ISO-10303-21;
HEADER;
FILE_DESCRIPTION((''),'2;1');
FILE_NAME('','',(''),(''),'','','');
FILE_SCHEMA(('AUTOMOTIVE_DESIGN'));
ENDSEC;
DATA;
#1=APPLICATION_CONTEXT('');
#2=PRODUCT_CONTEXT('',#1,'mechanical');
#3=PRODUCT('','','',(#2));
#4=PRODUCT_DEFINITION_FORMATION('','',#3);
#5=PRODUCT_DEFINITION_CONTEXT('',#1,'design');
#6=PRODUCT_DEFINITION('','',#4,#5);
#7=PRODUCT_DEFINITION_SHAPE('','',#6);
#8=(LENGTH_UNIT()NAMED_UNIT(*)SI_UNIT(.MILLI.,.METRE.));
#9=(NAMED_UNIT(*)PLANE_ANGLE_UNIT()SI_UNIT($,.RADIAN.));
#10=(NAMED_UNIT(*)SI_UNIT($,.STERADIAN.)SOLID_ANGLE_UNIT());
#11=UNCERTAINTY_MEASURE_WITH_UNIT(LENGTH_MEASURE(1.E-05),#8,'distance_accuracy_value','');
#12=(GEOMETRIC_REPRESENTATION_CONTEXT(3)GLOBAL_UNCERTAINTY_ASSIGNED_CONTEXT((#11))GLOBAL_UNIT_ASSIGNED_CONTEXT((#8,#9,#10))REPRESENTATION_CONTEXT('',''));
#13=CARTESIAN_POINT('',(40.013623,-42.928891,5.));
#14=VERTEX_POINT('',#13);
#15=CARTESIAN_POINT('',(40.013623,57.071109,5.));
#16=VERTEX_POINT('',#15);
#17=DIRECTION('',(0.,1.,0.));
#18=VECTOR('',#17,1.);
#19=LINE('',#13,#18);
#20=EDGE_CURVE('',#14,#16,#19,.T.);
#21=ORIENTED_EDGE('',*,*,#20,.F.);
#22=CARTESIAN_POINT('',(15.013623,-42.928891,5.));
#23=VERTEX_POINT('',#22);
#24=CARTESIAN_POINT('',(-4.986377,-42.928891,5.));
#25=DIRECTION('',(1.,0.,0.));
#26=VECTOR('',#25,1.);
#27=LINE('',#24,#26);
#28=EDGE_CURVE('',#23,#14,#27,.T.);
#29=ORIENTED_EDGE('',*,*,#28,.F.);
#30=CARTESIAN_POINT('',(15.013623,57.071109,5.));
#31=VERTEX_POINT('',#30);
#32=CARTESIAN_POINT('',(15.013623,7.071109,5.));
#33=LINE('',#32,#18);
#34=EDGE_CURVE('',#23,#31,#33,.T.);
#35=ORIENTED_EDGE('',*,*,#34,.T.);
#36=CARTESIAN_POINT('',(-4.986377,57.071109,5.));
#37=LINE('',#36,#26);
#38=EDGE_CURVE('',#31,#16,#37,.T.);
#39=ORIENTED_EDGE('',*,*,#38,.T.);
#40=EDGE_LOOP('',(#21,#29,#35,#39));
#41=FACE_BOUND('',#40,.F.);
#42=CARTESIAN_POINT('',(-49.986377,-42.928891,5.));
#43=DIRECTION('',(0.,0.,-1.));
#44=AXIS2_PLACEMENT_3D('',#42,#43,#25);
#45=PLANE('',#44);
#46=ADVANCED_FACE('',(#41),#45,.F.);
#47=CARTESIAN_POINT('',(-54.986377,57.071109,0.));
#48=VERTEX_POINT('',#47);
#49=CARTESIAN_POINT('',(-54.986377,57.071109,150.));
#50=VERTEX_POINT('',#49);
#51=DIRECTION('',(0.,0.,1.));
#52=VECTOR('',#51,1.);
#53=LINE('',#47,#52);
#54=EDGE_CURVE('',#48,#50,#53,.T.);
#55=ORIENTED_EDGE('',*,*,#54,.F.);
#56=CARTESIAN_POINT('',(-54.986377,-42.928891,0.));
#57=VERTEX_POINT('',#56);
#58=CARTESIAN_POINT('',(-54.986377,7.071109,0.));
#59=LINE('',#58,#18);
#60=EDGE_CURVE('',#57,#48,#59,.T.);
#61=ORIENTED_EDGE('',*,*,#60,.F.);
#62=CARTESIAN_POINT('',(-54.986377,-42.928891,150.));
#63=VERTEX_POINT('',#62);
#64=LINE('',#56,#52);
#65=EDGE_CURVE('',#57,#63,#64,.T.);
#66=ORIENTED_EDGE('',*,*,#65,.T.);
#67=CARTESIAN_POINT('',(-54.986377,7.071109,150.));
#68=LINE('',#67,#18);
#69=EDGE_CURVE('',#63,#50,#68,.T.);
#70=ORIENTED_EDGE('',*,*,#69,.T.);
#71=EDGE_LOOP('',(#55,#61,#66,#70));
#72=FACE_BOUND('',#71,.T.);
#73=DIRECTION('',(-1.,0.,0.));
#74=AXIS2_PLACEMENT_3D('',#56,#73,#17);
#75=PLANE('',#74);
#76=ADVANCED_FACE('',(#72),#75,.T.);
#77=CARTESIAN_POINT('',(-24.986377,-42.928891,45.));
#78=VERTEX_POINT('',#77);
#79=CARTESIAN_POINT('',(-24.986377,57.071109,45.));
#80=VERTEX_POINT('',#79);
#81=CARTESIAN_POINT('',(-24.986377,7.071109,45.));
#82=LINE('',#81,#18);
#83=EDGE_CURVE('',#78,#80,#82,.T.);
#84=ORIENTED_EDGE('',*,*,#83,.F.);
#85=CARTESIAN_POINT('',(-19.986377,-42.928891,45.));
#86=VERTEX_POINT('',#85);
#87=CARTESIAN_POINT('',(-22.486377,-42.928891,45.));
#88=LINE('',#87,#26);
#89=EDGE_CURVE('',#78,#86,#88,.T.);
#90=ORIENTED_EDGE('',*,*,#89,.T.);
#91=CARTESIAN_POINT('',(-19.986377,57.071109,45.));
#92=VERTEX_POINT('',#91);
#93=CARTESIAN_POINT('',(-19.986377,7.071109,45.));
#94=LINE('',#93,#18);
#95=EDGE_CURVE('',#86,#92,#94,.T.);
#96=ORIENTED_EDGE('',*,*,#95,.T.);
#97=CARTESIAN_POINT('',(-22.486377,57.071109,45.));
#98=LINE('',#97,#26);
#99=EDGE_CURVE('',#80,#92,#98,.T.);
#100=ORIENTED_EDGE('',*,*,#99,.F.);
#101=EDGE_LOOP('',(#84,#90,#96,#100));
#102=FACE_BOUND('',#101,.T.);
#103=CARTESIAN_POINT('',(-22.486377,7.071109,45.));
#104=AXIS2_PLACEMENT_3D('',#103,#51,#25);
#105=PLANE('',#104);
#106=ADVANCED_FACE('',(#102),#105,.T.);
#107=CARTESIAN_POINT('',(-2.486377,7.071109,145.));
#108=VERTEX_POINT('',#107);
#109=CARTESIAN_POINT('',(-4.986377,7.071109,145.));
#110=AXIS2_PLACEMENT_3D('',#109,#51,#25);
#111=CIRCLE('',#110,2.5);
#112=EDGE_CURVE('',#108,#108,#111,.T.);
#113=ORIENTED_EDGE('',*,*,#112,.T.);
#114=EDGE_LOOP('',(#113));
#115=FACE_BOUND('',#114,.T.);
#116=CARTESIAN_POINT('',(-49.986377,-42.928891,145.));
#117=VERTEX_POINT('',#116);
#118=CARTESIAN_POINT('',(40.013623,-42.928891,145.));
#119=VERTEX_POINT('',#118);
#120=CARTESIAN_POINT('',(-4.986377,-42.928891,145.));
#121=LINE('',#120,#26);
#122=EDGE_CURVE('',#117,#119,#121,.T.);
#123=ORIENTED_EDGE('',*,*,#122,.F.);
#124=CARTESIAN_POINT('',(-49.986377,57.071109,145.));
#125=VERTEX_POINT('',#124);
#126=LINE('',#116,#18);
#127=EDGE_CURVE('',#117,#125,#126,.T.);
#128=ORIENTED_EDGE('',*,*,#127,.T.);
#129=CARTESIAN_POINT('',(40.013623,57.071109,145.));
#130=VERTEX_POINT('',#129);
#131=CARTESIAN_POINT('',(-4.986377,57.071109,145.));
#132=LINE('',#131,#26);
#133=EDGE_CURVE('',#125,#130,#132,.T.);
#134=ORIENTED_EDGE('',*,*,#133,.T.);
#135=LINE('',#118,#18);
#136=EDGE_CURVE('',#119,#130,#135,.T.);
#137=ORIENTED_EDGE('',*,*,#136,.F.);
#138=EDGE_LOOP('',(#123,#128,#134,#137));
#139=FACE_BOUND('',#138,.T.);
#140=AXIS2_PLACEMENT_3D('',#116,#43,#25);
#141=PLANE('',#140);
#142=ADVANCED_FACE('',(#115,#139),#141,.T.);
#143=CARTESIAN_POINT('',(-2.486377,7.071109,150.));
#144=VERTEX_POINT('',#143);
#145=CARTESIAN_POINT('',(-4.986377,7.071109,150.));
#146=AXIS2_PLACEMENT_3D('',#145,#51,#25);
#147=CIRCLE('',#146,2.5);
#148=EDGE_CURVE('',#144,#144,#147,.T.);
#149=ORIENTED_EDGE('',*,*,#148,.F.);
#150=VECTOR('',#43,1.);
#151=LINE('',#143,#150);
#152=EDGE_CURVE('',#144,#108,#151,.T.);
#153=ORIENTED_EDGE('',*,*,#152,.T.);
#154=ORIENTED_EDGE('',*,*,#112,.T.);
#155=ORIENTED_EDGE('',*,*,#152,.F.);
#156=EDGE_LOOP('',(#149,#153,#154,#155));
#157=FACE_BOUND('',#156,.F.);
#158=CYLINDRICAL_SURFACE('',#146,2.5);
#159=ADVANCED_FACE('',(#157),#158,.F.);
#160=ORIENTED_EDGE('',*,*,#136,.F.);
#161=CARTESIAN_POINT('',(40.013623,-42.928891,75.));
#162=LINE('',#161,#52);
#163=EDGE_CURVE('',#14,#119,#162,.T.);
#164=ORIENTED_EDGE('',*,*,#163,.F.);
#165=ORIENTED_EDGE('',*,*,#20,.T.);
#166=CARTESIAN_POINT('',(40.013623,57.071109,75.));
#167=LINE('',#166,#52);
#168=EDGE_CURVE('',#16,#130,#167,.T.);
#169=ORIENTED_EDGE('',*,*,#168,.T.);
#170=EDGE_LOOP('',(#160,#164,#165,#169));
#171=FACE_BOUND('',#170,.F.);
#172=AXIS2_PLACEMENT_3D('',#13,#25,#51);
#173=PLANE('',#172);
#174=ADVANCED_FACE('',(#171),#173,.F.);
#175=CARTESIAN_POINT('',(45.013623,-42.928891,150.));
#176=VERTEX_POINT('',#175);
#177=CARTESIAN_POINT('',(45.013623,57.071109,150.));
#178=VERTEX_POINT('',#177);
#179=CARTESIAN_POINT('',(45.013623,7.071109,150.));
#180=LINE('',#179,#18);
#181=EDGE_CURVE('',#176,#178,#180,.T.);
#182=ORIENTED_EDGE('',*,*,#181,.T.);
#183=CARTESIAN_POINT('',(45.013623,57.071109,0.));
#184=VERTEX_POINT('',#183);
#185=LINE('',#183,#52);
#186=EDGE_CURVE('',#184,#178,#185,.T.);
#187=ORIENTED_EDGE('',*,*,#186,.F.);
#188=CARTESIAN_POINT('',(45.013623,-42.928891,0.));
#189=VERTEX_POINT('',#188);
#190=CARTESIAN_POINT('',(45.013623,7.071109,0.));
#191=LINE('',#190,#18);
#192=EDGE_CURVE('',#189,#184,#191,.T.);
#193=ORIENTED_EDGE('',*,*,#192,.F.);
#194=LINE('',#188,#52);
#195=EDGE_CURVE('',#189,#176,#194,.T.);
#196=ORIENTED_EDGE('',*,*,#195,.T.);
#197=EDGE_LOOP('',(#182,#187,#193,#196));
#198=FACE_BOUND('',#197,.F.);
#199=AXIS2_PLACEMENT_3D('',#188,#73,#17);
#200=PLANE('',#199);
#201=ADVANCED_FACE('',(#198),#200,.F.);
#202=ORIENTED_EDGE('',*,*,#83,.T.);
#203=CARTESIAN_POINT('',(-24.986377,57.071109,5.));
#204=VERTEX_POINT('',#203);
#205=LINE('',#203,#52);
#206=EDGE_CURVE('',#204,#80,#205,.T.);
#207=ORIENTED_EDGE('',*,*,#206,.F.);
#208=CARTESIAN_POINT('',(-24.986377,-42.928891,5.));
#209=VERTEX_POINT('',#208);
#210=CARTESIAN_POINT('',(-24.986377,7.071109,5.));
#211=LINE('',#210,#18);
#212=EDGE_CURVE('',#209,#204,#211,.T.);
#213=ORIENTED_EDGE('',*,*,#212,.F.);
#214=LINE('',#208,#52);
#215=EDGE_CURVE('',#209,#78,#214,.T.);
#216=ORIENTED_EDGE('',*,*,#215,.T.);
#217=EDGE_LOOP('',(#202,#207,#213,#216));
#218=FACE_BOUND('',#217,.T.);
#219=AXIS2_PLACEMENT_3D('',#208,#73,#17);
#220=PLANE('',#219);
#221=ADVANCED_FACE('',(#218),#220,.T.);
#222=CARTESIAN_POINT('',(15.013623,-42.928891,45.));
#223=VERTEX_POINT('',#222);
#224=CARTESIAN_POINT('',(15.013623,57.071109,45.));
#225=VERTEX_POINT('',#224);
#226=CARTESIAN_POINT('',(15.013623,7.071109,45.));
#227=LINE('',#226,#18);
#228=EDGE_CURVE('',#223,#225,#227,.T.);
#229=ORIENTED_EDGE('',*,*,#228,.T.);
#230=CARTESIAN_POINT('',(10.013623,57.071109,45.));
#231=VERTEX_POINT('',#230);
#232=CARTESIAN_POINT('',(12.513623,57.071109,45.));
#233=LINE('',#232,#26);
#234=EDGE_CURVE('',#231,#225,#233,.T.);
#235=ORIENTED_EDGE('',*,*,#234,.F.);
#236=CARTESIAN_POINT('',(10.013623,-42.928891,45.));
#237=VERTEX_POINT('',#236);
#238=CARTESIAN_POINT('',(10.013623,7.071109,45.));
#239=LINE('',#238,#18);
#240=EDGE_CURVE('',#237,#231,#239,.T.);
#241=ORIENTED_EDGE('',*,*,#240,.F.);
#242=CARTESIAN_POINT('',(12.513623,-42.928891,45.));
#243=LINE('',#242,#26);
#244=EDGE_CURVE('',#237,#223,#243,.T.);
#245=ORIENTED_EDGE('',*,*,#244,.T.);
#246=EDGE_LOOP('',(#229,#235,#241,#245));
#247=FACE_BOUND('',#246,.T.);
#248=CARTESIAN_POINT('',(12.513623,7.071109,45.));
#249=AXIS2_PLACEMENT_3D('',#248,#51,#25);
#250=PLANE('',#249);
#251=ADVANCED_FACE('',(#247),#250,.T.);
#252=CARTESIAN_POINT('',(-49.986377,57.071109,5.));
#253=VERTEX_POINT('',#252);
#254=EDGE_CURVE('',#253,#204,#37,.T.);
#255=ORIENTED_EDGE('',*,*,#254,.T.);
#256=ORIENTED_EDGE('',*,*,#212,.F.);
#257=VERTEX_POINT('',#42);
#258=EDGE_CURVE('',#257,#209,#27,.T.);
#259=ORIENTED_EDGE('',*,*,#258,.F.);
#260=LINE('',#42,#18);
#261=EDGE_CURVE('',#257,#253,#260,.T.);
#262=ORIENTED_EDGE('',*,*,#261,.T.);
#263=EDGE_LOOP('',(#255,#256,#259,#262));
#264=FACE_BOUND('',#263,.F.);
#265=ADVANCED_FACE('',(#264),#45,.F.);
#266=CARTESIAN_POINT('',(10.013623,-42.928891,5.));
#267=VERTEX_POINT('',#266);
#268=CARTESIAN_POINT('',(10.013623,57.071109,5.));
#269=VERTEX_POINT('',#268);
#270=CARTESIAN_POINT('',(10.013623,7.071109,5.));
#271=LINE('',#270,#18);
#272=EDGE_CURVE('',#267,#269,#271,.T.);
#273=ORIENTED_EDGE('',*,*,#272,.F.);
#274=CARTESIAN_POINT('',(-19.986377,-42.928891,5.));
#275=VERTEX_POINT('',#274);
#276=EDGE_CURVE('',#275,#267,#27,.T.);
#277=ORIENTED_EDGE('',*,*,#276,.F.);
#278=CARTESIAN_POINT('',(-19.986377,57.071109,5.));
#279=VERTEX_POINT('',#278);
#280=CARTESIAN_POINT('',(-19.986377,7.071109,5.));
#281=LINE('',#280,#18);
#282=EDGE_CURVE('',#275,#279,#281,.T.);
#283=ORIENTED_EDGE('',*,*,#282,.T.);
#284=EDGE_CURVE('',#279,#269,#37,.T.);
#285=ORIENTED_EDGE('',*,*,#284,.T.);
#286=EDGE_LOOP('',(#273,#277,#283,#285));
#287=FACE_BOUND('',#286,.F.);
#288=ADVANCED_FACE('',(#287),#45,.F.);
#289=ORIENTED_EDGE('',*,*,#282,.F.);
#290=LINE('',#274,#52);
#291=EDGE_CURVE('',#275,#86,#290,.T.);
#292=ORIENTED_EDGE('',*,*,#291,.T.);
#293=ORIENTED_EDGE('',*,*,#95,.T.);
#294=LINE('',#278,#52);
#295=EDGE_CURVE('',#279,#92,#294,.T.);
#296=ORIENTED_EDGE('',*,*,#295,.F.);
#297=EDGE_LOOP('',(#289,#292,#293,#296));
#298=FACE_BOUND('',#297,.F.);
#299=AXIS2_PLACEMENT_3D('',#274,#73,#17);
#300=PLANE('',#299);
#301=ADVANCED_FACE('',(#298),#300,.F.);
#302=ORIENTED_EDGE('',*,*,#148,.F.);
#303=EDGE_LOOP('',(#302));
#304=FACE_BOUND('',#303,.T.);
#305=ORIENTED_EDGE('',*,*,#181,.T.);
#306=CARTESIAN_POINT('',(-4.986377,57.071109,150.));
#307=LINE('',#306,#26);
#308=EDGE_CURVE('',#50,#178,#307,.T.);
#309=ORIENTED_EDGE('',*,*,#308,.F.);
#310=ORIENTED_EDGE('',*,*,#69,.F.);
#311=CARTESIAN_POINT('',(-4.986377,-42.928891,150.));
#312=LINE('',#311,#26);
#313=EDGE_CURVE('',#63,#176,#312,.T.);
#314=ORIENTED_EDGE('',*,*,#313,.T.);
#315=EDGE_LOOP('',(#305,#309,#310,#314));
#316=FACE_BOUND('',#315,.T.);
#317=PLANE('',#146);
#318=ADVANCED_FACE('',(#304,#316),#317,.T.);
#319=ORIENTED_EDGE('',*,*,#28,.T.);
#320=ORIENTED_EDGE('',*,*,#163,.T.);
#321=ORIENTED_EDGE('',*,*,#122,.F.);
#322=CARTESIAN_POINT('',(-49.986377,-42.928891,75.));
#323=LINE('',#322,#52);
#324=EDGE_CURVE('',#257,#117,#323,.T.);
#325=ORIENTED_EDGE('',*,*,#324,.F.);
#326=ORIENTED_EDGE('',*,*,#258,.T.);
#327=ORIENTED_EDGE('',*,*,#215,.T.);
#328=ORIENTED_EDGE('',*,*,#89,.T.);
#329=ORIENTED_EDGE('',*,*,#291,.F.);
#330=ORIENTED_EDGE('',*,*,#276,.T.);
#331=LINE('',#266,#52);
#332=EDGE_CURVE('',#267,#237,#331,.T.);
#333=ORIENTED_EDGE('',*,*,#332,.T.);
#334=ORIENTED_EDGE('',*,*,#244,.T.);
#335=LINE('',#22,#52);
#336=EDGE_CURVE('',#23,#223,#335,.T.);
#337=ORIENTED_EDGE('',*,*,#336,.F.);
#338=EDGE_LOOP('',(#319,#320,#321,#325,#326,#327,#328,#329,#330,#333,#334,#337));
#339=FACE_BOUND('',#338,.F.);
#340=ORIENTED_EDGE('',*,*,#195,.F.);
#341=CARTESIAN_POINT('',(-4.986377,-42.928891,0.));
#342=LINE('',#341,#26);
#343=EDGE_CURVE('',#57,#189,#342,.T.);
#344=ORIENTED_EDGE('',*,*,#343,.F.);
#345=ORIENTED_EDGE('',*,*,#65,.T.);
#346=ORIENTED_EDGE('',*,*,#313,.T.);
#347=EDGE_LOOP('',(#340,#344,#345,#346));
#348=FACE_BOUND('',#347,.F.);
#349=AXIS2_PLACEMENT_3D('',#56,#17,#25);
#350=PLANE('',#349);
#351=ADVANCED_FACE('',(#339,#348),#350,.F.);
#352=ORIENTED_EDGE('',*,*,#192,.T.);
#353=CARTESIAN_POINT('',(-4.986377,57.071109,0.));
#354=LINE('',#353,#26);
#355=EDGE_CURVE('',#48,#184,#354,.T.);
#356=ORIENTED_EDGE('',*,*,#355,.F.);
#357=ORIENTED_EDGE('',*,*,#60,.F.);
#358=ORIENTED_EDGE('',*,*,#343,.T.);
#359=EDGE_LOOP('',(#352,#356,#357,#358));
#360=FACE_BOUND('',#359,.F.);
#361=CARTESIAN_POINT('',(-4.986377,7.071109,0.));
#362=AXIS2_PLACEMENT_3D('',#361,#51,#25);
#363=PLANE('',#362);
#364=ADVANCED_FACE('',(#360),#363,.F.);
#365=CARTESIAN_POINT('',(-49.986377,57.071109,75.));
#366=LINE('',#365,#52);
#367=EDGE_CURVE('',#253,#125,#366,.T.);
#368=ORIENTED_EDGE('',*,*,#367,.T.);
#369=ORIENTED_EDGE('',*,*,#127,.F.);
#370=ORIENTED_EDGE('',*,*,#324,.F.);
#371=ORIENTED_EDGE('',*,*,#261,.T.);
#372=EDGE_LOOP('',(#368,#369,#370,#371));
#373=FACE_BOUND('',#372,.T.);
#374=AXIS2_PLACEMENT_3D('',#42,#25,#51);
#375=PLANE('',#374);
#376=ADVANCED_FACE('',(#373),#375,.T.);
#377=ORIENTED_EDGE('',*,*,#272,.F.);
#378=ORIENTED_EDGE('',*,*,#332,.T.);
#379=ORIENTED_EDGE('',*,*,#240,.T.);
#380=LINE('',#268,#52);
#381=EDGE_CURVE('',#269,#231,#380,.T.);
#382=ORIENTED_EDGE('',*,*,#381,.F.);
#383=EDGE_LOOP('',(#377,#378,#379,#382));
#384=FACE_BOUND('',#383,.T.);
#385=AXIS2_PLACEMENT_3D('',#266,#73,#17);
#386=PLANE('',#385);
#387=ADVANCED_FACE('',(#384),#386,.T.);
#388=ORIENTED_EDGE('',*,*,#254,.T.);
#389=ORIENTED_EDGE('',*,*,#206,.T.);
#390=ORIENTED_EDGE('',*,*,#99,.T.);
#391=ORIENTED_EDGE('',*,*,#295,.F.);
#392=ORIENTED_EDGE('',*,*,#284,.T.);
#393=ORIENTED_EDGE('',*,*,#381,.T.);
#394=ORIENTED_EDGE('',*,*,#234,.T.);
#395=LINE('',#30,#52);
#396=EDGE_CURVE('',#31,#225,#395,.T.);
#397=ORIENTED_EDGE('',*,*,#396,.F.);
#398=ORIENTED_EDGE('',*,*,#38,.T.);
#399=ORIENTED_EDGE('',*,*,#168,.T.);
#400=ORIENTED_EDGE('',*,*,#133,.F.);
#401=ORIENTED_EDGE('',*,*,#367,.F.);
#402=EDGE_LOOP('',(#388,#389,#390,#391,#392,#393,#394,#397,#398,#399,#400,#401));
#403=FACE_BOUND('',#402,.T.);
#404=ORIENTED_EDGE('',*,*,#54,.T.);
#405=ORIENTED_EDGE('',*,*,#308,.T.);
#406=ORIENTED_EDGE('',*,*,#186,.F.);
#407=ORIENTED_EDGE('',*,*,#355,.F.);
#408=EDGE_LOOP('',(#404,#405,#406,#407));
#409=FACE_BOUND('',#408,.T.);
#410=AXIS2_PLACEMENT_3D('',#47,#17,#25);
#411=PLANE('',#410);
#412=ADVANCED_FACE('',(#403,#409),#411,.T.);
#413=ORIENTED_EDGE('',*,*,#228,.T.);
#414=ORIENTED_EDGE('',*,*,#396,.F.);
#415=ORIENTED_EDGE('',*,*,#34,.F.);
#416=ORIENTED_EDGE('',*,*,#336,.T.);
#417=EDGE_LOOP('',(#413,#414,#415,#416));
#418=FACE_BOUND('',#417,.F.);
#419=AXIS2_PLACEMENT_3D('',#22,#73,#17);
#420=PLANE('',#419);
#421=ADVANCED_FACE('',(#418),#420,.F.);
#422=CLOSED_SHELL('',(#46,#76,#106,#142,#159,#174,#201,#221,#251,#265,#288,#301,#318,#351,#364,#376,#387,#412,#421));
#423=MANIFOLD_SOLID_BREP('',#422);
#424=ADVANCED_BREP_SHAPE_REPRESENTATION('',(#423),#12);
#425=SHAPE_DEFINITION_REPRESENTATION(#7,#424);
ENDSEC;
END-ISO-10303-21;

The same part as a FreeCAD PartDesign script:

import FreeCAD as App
import Part
import Sketcher

V = App.Vector
Q = App.Units.Quantity


def add_polygon(sketch, points):
    """Adds a closed chain of lines whose ends are joined by coincident constraints."""
    first, n = sketch.GeometryCount, len(points)
    for a, b in zip(points, points[1:] + points[:1]):
        sketch.addGeometry(Part.LineSegment(App.Vector(*a, 0), App.Vector(*b, 0)), False)
    for i in range(n):
        sketch.addConstraint(Sketcher.Constraint("Coincident", first + i, 2, first + (i + 1) % n, 1))

doc = App.newDocument("Part")
body = doc.addObject("PartDesign::Body", "Body")

sketch1 = body.newObject("Sketcher::SketchObject", "Sketch")
sketch1.AttachmentSupport = (doc.getObject("XY_Plane"), [""])
sketch1.MapMode = "FlatFace"
add_polygon(sketch1, [(-55, 57), (-55, -43), (45, -43), (45, 57)])
sketch1.addConstraint(Sketcher.Constraint("Vertical", 0))
sketch1.addConstraint(Sketcher.Constraint("Horizontal", 1))
sketch1.addConstraint(Sketcher.Constraint("Vertical", 2))
sketch1.addConstraint(Sketcher.Constraint("Horizontal", 3))
sketch1.addConstraint(Sketcher.Constraint("Equal", 3, 0))
sketch1.addConstraint(Sketcher.Constraint("DistanceX", 1, 1, 1, 2, Q("100 mm")))
sketch1.addConstraint(Sketcher.Constraint("DistanceY", 0, 2, -1, 1, Q("42.928891 mm")))
sketch1.addConstraint(Sketcher.Constraint("DistanceX", 0, 2, -1, 1, Q("54.986377 mm")))
pad1 = body.newObject("PartDesign::Pad", "Pad")
pad1.Profile = sketch1
pad1.Length = 150

sketch2 = body.newObject("Sketcher::SketchObject", "Sketch001")
sketch2.AttachmentSupport = (doc.getObject("XZ_Plane"), [""])
sketch2.MapMode = "FlatFace"
sketch2.AttachmentOffset = App.Placement(V(0, 0, 42.928891), App.Rotation())
add_polygon(sketch2, [(-50, 145), (-50, 5), (40, 5), (40, 145)])
sketch2.addConstraint(Sketcher.Constraint("Vertical", 0))
sketch2.addConstraint(Sketcher.Constraint("Horizontal", 1))
sketch2.addConstraint(Sketcher.Constraint("Vertical", 2))
sketch2.addConstraint(Sketcher.Constraint("Horizontal", 3))
sketch2.addConstraint(Sketcher.Constraint("DistanceX", 1, 1, 1, 2, Q("90 mm")))
sketch2.addConstraint(Sketcher.Constraint("DistanceY", 0, 2, 0, 1, Q("140 mm")))
sketch2.addConstraint(Sketcher.Constraint("DistanceY", -1, 1, 0, 2, Q("5 mm")))
sketch2.addConstraint(Sketcher.Constraint("DistanceX", 0, 2, -1, 1, Q("49.986377 mm")))
pocket1 = body.newObject("PartDesign::Pocket", "Pocket")
pocket1.Profile = sketch2
pocket1.Length = 100

sketch3 = body.newObject("Sketcher::SketchObject", "Sketch002")
sketch3.AttachmentSupport = (doc.getObject("XY_Plane"), [""])
sketch3.MapMode = "FlatFace"
sketch3.AttachmentOffset = App.Placement(V(0, 0, 150), App.Rotation())
sketch3.addGeometry(Part.Circle(V(-5, 7.1, 0), V(0, 0, 1), 2.5), False)
sketch3.addConstraint(Sketcher.Constraint("Diameter", 0, Q("5 mm")))
sketch3.addConstraint(Sketcher.Constraint("DistanceY", -1, 1, 0, 3, Q("7.071109 mm")))
sketch3.addConstraint(Sketcher.Constraint("DistanceX", 0, 3, -1, 1, Q("4.986377 mm")))
pocket2 = body.newObject("PartDesign::Pocket", "Pocket001")
pocket2.Profile = sketch3
pocket2.Length = 50

sketch4 = body.newObject("Sketcher::SketchObject", "Sketch003")
sketch4.AttachmentSupport = (doc.getObject("XY_Plane"), [""])
sketch4.MapMode = "FlatFace"
sketch4.AttachmentOffset = App.Placement(V(0, 0, 5), App.Rotation())
add_polygon(sketch4, [(-25, 57), (-25, -43), (-20, -43), (-20, 57)])
add_polygon(sketch4, [(10, 57), (10, -43), (15, -43), (15, 57)])
sketch4.addConstraint(Sketcher.Constraint("Vertical", 0))
sketch4.addConstraint(Sketcher.Constraint("Horizontal", 1))
sketch4.addConstraint(Sketcher.Constraint("Vertical", 2))
sketch4.addConstraint(Sketcher.Constraint("Horizontal", 3))
sketch4.addConstraint(Sketcher.Constraint("Vertical", 4))
sketch4.addConstraint(Sketcher.Constraint("Horizontal", 5))
sketch4.addConstraint(Sketcher.Constraint("Vertical", 6))
sketch4.addConstraint(Sketcher.Constraint("Horizontal", 7))
sketch4.addConstraint(Sketcher.Constraint("Horizontal", 1, 2, 4, 2))
sketch4.addConstraint(Sketcher.Constraint("Horizontal", 3, 2, 6, 2))
sketch4.addConstraint(Sketcher.Constraint("Equal", 3, 5))
sketch4.addConstraint(Sketcher.Constraint("DistanceX", 1, 1, 1, 2, Q("5 mm")))
sketch4.addConstraint(Sketcher.Constraint("DistanceY", 0, 2, 0, 1, Q("100 mm")))
sketch4.addConstraint(Sketcher.Constraint("DistanceX", 1, 2, 4, 2, Q("30 mm")))
sketch4.addConstraint(Sketcher.Constraint("DistanceY", 0, 2, -1, 1, Q("42.928891 mm")))
sketch4.addConstraint(Sketcher.Constraint("DistanceX", 0, 2, -1, 1, Q("24.986377 mm")))
pad2 = body.newObject("PartDesign::Pad", "Pad001")
pad2.Profile = sketch4
pad2.Length = 40

doc.recompute()
